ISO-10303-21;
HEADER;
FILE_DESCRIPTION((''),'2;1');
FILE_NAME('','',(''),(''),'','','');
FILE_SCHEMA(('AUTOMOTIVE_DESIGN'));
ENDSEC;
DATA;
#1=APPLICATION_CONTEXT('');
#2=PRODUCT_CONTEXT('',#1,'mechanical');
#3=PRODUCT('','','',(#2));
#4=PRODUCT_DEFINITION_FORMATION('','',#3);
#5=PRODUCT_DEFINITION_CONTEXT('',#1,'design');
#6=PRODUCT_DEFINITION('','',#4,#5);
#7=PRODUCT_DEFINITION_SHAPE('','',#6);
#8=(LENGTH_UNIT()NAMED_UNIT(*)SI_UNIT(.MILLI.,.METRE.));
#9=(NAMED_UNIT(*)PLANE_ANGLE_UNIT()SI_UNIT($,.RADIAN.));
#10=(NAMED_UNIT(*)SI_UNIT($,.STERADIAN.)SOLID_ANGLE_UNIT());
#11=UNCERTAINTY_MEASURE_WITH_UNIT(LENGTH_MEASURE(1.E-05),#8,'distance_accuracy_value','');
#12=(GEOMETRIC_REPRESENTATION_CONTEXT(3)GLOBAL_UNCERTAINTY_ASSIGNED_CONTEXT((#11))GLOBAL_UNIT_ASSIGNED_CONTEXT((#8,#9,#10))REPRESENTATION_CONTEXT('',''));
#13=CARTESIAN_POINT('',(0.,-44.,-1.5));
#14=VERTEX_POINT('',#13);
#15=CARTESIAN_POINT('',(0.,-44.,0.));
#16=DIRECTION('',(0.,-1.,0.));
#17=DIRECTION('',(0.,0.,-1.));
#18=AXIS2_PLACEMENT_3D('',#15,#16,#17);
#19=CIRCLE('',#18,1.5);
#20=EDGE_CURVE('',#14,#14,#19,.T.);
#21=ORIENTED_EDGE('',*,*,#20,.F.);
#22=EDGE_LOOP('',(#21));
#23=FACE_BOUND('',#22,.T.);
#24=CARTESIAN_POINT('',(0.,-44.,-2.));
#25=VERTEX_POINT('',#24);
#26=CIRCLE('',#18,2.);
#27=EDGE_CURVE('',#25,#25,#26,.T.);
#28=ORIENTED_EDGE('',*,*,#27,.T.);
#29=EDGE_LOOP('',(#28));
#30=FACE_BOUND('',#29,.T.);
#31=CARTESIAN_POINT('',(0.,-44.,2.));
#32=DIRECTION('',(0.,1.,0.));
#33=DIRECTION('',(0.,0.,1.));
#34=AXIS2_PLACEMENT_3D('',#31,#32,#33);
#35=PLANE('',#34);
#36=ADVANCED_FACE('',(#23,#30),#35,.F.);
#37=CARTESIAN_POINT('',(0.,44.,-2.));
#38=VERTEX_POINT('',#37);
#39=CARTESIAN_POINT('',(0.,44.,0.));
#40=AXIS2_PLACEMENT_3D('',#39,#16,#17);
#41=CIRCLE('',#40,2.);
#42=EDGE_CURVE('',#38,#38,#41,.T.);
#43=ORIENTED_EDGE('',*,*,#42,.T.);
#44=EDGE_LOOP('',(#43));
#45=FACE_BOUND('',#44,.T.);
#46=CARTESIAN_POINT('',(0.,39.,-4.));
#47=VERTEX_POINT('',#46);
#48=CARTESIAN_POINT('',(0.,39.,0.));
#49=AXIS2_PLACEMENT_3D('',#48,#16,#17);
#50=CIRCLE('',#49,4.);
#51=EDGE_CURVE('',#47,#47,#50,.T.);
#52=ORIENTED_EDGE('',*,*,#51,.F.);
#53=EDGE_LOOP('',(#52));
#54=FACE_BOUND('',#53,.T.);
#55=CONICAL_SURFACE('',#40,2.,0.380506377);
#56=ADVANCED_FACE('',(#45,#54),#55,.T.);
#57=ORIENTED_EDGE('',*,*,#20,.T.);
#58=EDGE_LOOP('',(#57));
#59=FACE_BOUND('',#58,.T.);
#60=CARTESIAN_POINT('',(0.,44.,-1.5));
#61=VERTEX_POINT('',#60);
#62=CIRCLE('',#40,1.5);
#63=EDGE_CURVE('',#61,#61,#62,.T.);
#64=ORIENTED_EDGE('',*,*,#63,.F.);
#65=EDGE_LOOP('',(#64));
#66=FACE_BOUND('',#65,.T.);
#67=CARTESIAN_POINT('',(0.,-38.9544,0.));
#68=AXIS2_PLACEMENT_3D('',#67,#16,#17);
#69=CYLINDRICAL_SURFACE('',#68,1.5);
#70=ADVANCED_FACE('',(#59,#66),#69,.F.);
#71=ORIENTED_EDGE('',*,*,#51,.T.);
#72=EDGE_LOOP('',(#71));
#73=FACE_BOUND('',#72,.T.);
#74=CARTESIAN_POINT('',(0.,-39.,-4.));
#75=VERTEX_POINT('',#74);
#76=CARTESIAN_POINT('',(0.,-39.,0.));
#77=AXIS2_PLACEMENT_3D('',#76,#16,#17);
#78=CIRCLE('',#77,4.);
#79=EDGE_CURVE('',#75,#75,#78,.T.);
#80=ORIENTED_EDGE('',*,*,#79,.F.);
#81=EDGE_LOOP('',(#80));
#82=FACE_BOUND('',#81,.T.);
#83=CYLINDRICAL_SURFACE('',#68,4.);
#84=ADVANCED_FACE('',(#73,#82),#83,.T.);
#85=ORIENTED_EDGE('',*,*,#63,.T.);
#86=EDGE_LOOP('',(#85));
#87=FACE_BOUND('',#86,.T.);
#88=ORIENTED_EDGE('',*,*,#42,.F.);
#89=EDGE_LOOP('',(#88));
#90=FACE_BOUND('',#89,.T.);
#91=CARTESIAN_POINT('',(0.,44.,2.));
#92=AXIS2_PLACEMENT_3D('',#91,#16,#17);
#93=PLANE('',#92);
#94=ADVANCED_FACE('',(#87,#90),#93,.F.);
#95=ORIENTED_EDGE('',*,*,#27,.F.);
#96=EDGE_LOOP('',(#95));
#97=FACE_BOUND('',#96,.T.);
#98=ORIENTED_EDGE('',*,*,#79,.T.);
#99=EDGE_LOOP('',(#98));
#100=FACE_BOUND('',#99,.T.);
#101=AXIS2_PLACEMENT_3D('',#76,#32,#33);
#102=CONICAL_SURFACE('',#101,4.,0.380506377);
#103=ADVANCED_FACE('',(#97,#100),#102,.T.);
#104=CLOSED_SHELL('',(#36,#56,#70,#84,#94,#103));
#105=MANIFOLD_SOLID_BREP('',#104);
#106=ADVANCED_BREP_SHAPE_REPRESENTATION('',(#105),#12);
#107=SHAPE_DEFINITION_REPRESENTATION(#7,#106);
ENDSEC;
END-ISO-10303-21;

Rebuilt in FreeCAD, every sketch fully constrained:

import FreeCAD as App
import Part
import Sketcher

V = App.Vector


def add_polygon(sketch, points):
    """Adds a closed chain of lines whose ends are joined by coincident constraints."""
    first, n = sketch.GeometryCount, len(points)
    for a, b in zip(points, points[1:] + points[:1]):
        sketch.addGeometry(Part.LineSegment(App.Vector(*a, 0), App.Vector(*b, 0)), False)
    for i in range(n):
        sketch.addConstraint(Sketcher.Constraint("Coincident", first + i, 2, first + (i + 1) % n, 1))

doc = App.newDocument("Part")
params = doc.addObject("Spreadsheet::Sheet", "Params")
for row, (alias, value) in enumerate([
    ("sketch1_width", "78 mm"),
    ("sketch1_width2", "88 mm"),
    ("sketch1_height", "0.5 mm"),
    ("revolution_angle", "360 deg"),
], start=1):
    params.set(f"A{row}", alias)
    params.set(f"B{row}", "=" + value)
    params.setAlias(f"B{row}", alias)

body = doc.addObject("PartDesign::Body", "Body")

# Sketch on YZ plane
sketch1 = doc.addObject("Sketcher::SketchObject", "Sketch")
body.addObject(sketch1)
sketch1.AttachmentSupport = (doc.YZ_Plane, [""])
sketch1.MapMode = "FlatFace"
add_polygon(sketch1, [(39, 4), (-39, 4), (-44, 2), (-44, 1.5), (44, 1.5), (44, 2)])  # lines 0-5
sketch1.addConstraint([
    Sketcher.Constraint("Horizontal", 0),
    Sketcher.Constraint("Vertical", 2),
    Sketcher.Constraint("Horizontal", 3),
    Sketcher.Constraint("Vertical", 4),
    Sketcher.Constraint("Symmetric", 1, 2, 4, 2, -2),
    Sketcher.Constraint("Equal", 1, 5),
    Sketcher.Constraint("DistanceX", 0, 2, 0, 1, 78.0),
    Sketcher.Constraint("DistanceX", 3, 1, 3, 2, 88.0),
    Sketcher.Constraint("DistanceY", 2, 2, 2, 1, 0.5),
    Sketcher.Constraint("DistanceY", -1, 1, 0, 2, 4.0),
    Sketcher.Constraint("DistanceY", -1, 1, 1, 2, 2.0),
])
sketch1.setExpression("Constraints[12]", "Params.sketch1_width")
sketch1.setExpression("Constraints[13]", "Params.sketch1_width2")
sketch1.setExpression("Constraints[14]", "Params.sketch1_height")
revolution = doc.addObject("PartDesign::Revolution", "Revolution")
body.addObject(revolution)
revolution.Profile = sketch1
revolution.ReferenceAxis = (sketch1, ["H_Axis"])
revolution.setExpression("Angle", "Params.revolution_angle")

doc.recompute()
